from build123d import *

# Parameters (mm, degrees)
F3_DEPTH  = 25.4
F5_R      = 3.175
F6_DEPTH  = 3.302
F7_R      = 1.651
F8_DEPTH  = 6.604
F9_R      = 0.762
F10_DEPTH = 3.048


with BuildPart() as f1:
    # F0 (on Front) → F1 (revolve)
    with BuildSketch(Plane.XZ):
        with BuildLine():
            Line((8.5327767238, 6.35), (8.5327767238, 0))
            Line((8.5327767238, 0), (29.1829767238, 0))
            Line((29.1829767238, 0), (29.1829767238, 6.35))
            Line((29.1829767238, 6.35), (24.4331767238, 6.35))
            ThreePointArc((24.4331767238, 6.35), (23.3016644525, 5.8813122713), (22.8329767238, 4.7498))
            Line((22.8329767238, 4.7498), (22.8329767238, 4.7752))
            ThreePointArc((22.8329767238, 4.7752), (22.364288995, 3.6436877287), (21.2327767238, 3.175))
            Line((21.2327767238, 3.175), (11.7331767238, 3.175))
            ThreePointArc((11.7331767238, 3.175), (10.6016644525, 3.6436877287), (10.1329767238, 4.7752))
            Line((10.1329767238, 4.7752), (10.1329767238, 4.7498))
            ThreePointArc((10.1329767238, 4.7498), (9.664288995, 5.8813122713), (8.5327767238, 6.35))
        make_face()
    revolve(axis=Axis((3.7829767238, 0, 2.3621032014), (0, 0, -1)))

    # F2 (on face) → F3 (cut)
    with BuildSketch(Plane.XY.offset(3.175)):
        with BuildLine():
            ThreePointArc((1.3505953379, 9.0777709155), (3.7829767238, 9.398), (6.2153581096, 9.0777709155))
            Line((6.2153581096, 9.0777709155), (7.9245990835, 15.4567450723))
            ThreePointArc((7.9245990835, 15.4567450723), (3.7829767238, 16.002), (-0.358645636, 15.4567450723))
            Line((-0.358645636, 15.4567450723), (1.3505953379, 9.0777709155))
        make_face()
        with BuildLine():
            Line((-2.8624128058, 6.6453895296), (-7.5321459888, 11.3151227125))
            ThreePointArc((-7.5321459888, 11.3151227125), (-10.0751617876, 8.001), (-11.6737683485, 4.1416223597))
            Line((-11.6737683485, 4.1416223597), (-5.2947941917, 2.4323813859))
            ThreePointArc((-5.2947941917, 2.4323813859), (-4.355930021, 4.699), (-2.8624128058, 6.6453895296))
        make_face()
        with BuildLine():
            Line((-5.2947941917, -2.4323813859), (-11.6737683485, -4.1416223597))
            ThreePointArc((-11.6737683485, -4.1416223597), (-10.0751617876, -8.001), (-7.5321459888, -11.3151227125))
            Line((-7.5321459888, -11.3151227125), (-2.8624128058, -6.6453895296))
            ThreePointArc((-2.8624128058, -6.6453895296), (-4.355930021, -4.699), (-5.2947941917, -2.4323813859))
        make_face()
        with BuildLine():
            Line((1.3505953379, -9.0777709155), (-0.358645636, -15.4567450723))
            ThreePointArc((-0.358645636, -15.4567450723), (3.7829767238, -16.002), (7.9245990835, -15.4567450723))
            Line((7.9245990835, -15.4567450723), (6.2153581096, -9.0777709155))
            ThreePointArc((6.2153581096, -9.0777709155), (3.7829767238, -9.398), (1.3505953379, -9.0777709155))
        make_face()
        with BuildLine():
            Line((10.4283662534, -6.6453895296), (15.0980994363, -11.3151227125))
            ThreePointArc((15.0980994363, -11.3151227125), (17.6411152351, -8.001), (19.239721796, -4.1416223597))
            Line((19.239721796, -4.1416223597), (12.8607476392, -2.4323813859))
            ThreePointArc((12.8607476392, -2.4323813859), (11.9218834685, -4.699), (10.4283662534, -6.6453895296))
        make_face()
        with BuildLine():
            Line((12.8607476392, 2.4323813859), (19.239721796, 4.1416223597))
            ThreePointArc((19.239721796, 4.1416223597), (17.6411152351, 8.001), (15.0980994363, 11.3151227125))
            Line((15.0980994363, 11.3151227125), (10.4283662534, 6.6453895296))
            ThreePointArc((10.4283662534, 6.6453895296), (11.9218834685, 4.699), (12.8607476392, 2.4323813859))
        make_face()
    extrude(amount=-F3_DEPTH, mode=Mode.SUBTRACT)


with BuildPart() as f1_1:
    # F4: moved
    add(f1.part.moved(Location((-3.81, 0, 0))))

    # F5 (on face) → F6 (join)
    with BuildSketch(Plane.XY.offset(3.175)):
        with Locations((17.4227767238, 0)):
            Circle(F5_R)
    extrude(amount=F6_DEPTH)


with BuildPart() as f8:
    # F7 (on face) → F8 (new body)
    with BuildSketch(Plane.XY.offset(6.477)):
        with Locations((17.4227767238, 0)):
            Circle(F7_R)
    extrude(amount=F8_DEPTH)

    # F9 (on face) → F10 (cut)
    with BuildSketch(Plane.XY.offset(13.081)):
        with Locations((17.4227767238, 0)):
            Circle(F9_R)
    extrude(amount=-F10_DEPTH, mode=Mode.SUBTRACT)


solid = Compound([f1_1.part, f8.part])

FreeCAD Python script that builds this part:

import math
import FreeCAD as App
import Part
import Sketcher
Q = App.Units.Quantity

doc = App.newDocument("Part")
body = doc.addObject("PartDesign::Body", "Body")

sketch1 = doc.addObject("Sketcher::SketchObject", "Sketch")
body.addObject(sketch1)
sketch1.AttachmentSupport = (doc.XZ_Plane, [""])
sketch1.MapMode = "FlatFace"
sketch1.addGeometry([
    Part.LineSegment(App.Vector(8.532777, 6.35, 0), App.Vector(8.532777, 0, 0)),
    Part.LineSegment(App.Vector(8.532777, 0, 0), App.Vector(29.182977, 0, 0)),
    Part.LineSegment(App.Vector(29.182977, 0, 0), App.Vector(29.182977, 6.35, 0)),
    Part.LineSegment(App.Vector(29.182977, 6.35, 0), App.Vector(24.433177, 6.35, 0)),
    Part.ArcOfCircle(Part.Circle(App.Vector(24.433177, 4.7498, 0), App.Vector(0, 0, 1), 1.6002), math.radians(90), math.radians(180)),
    Part.LineSegment(App.Vector(22.832977, 4.7498, 0), App.Vector(22.832977, 4.7752, 0)),
    Part.ArcOfCircle(Part.Circle(App.Vector(21.232777, 4.7752, 0), App.Vector(0, 0, 1), 1.6002), math.radians(-90), math.radians(0)),
    Part.LineSegment(App.Vector(21.232777, 3.175, 0), App.Vector(11.733177, 3.175, 0)),
    Part.ArcOfCircle(Part.Circle(App.Vector(11.733177, 4.7752, 0), App.Vector(0, 0, 1), 1.6002), math.radians(180), math.radians(270)),
    Part.LineSegment(App.Vector(10.132977, 4.7752, 0), App.Vector(10.132977, 4.7498, 0)),
    Part.ArcOfCircle(Part.Circle(App.Vector(8.532777, 4.7498, 0), App.Vector(0, 0, 1), 1.6002), math.radians(0), math.radians(90)),
], False)
sketch1.addGeometry(Part.LineSegment(App.Vector(3.782977, 6.35, 0), App.Vector(3.782977, 0, 0)), True)
sketch1.addConstraint([
    Sketcher.Constraint("Coincident", 0, 2, 1, 1),
    Sketcher.Constraint("Coincident", 1, 2, 2, 1),
    Sketcher.Constraint("Coincident", 2, 2, 3, 1),
    Sketcher.Constraint("Tangent", 3, 2, 4, 1),
    Sketcher.Constraint("Tangent", 4, 2, 5, 1),
    Sketcher.Constraint("Tangent", 5, 2, 6, 2),
    Sketcher.Constraint("Tangent", 6, 1, 7, 1),
    Sketcher.Constraint("Tangent", 7, 2, 8, 2),
    Sketcher.Constraint("Tangent", 8, 1, 9, 1),
    Sketcher.Constraint("Tangent", 9, 2, 10, 1),
    Sketcher.Constraint("Coincident", 10, 2, 0, 1),
    Sketcher.Constraint("Vertical", 0),
    Sketcher.Constraint("Horizontal", 1),
    Sketcher.Constraint("Vertical", 2),
    Sketcher.Constraint("Horizontal", 3),
    Sketcher.Constraint("Vertical", 5),
    Sketcher.Constraint("Horizontal", 7),
    Sketcher.Constraint("Vertical", 9),
    Sketcher.Constraint("Vertical", 11),
    Sketcher.Constraint("Equal", 4, 6),
    Sketcher.Constraint("Equal", 6, 8),
    Sketcher.Constraint("Equal", 8, 10),
    Sketcher.Constraint("PointOnObject", 0, 2, -1),
    Sketcher.Constraint("PointOnObject", 11, 2, -1),
    Sketcher.Constraint("Horizontal", 4, 3, 10, 3),
    Sketcher.Constraint("Horizontal", 10, 2, 11, 1),
    Sketcher.Constraint("Vertical", 10, 3, 0, 2),
    Sketcher.Constraint("Radius", 4, Q("0.063 in")),
    Sketcher.Constraint("DistanceY", 0, 2, 0, 1, Q("0.25 in")),
    Sketcher.Constraint("DistanceX", 8, 3, 4, 3, Q("0.5 in")),
    Sketcher.Constraint("DistanceX", 1, 1, 1, 2, Q("0.813 in")),
    Sketcher.Constraint("DistanceY", 5, 1, 5, 2, Q("0.001 in")),
    Sketcher.Constraint("DistanceX", 11, 1, 8, 1, Q("0.25 in")),
    Sketcher.Constraint("DistanceX", -1, 1, 4, 3, Q("24.433177 mm")),
])
revolution = doc.addObject("PartDesign::Revolution", "Revolution")
body.addObject(revolution)
revolution.Profile = sketch1
revolution.ReferenceAxis = (sketch1, ["Axis0"])
revolution.Angle = 360

sketch2 = doc.addObject("Sketcher::SketchObject", "Sketch001")
body.addObject(sketch2)
sketch2.AttachmentSupport = (doc.XY_Plane, [""])
sketch2.MapMode = "FlatFace"
sketch2.AttachmentOffset = App.Placement(App.Vector(0, 0, 0.125 * 25.4), App.Rotation())
sketch2.addGeometry([
    Part.ArcOfCircle(Part.Circle(App.Vector(3.782977, 0, 0), App.Vector(0, 0, 1), 9.398), math.radians(75), math.radians(105)),
    Part.LineSegment(App.Vector(6.215358, 9.077771, 0), App.Vector(7.924599, 15.456745, 0)),
    Part.ArcOfCircle(Part.Circle(App.Vector(3.782977, 0, 0), App.Vector(0, 0, 1), 16.002), math.radians(75), math.radians(105)),
    Part.LineSegment(App.Vector(-0.358646, 15.456745, 0), App.Vector(1.350595, 9.077771, 0)),
    Part.LineSegment(App.Vector(-2.862413, 6.64539, 0), App.Vector(-7.532146, 11.315123, 0)),
    Part.ArcOfCircle(Part.Circle(App.Vector(3.782977, 0, 0), App.Vector(0, 0, 1), 16.002), math.radians(135), math.radians(165)),
    Part.LineSegment(App.Vector(-11.673768, 4.141622, 0), App.Vector(-5.294794, 2.432381, 0)),
    Part.ArcOfCircle(Part.Circle(App.Vector(3.782977, 0, 0), App.Vector(0, 0, 1), 9.398), math.radians(135), math.radians(165)),
    Part.LineSegment(App.Vector(-5.294794, -2.432381, 0), App.Vector(-11.673768, -4.141622, 0)),
    Part.ArcOfCircle(Part.Circle(App.Vector(3.782977, 0, 0), App.Vector(0, 0, 1), 16.002), math.radians(-165), math.radians(-135)),
    Part.LineSegment(App.Vector(-7.532146, -11.315123, 0), App.Vector(-2.862413, -6.64539, 0)),
    Part.ArcOfCircle(Part.Circle(App.Vector(3.782977, 0, 0), App.Vector(0, 0, 1), 9.398), math.radians(-165), math.radians(-135)),
    Part.LineSegment(App.Vector(1.350595, -9.077771, 0), App.Vector(-0.358646, -15.456745, 0)),
    Part.ArcOfCircle(Part.Circle(App.Vector(3.782977, 0, 0), App.Vector(0, 0, 1), 16.002), math.radians(-105), math.radians(-75)),
    Part.LineSegment(App.Vector(7.924599, -15.456745, 0), App.Vector(6.215358, -9.077771, 0)),
    Part.ArcOfCircle(Part.Circle(App.Vector(3.782977, 0, 0), App.Vector(0, 0, 1), 9.398), math.radians(-105), math.radians(-75)),
    Part.LineSegment(App.Vector(10.428366, -6.64539, 0), App.Vector(15.098099, -11.315123, 0)),
    Part.ArcOfCircle(Part.Circle(App.Vector(3.782977, 0, 0), App.Vector(0, 0, 1), 16.002), math.radians(-45), math.radians(-15)),
    Part.LineSegment(App.Vector(19.239722, -4.141622, 0), App.Vector(12.860748, -2.432381, 0)),
    Part.ArcOfCircle(Part.Circle(App.Vector(3.782977, 0, 0), App.Vector(0, 0, 1), 9.398), math.radians(-45), math.radians(-15)),
    Part.LineSegment(App.Vector(12.860748, 2.432381, 0), App.Vector(19.239722, 4.141622, 0)),
    Part.ArcOfCircle(Part.Circle(App.Vector(3.782977, 0, 0), App.Vector(0, 0, 1), 16.002), math.radians(15), math.radians(45)),
    Part.LineSegment(App.Vector(15.098099, 11.315123, 0), App.Vector(10.428366, 6.64539, 0)),
    Part.ArcOfCircle(Part.Circle(App.Vector(3.782977, 0, 0), App.Vector(0, 0, 1), 9.398), math.radians(15), math.radians(45)),
], False)
sketch2.addConstraint([
    Sketcher.Constraint("Coincident", 0, 1, 1, 1),
    Sketcher.Constraint("Coincident", 1, 2, 2, 1),
    Sketcher.Constraint("Coincident", 2, 2, 3, 1),
    Sketcher.Constraint("Coincident", 3, 2, 0, 2),
    Sketcher.Constraint("Coincident", 4, 2, 5, 1),
    Sketcher.Constraint("Coincident", 5, 2, 6, 1),
    Sketcher.Constraint("Coincident", 6, 2, 7, 2),
    Sketcher.Constraint("Coincident", 7, 1, 4, 1),
    Sketcher.Constraint("Coincident", 8, 2, 9, 1),
    Sketcher.Constraint("Coincident", 9, 2, 10, 1),
    Sketcher.Constraint("Coincident", 10, 2, 11, 2),
    Sketcher.Constraint("Coincident", 11, 1, 8, 1),
    Sketcher.Constraint("Coincident", 12, 2, 13, 1),
    Sketcher.Constraint("Coincident", 13, 2, 14, 1),
    Sketcher.Constraint("Coincident", 14, 2, 15, 2),
    Sketcher.Constraint("Coincident", 15, 1, 12, 1),
    Sketcher.Constraint("Coincident", 16, 2, 17, 1),
    Sketcher.Constraint("Coincident", 17, 2, 18, 1),
    Sketcher.Constraint("Coincident", 18, 2, 19, 2),
    Sketcher.Constraint("Coincident", 19, 1, 16, 1),
    Sketcher.Constraint("Coincident", 20, 2, 21, 1),
    Sketcher.Constraint("Coincident", 21, 2, 22, 1),
    Sketcher.Constraint("Coincident", 22, 2, 23, 2),
    Sketcher.Constraint("Coincident", 23, 1, 20, 1),
    Sketcher.Constraint("Coincident", 2, 3, 0, 3),
    Sketcher.Constraint("Coincident", 5, 3, 0, 3),
    Sketcher.Constraint("Coincident", 7, 3, 0, 3),
    Sketcher.Constraint("Coincident", 9, 3, 0, 3),
    Sketcher.Constraint("Coincident", 11, 3, 0, 3),
    Sketcher.Constraint("Coincident", 13, 3, 0, 3),
    Sketcher.Constraint("Coincident", 15, 3, 0, 3),
    Sketcher.Constraint("Coincident", 17, 3, 0, 3),
    Sketcher.Constraint("Coincident", 19, 3, 0, 3),
    Sketcher.Constraint("Coincident", 21, 3, 0, 3),
    Sketcher.Constraint("Coincident", 23, 3, 0, 3),
    Sketcher.Constraint("Equal", 2, 5),
    Sketcher.Constraint("Equal", 0, 7),
    Sketcher.Constraint("Equal", 5, 9),
    Sketcher.Constraint("Equal", 7, 11),
    Sketcher.Constraint("Equal", 9, 13),
    Sketcher.Constraint("Equal", 11, 15),
    Sketcher.Constraint("Equal", 13, 17),
    Sketcher.Constraint("Equal", 15, 19),
    Sketcher.Constraint("Equal", 17, 21),
    Sketcher.Constraint("Equal", 19, 23),
    Sketcher.Constraint("Symmetric", 5, 2, 8, 2, -1),
    Sketcher.Constraint("Perpendicular", 1, 6),
    Sketcher.Constraint("Perpendicular", 3, 8),
    Sketcher.Constraint("Perpendicular", 4, 10),
    Sketcher.Constraint("Perpendicular", 6, 12),
    Sketcher.Constraint("Perpendicular", 8, 14),
    Sketcher.Constraint("Perpendicular", 10, 16),
    Sketcher.Constraint("Perpendicular", 12, 18),
    Sketcher.Constraint("Perpendicular", 14, 20),
    Sketcher.Constraint("Perpendicular", 16, 22),
    Sketcher.Constraint("Horizontal", 1, 2, 2, 2),
    Sketcher.Constraint("Horizontal", 0, 1, 3, 2),
    Sketcher.Constraint("Horizontal", 12, 2, 13, 2),
    Sketcher.Constraint("Horizontal", 9, 2, 16, 2),
    Sketcher.Constraint("Horizontal", 8, 2, 17, 2),
    Sketcher.Constraint("Horizontal", 10, 2, 19, 1),
    Sketcher.Constraint("Horizontal", 5, 2, 20, 2),
    Sketcher.Constraint("Horizontal", 4, 2, 21, 2),
    Sketcher.Constraint("Vertical", 4, 2, 9, 2),
    Sketcher.Constraint("Vertical", 2, 2, 12, 2),
    Sketcher.Constraint("Radius", 0, Q("0.37 in")),
    Sketcher.Constraint("Radius", 2, Q("0.63 in")),
    Sketcher.Constraint("Angle", 1, Q("75 deg")),
    Sketcher.Constraint("DistanceX", -1, 1, 1, 2, Q("7.924599 mm")),
    Sketcher.Constraint("DistanceX", -1, 1, 16, 2, Q("15.098099 mm")),
    Sketcher.Constraint("DistanceY", 5, 2, 4, 2, Q("7.1735 mm")),
    Sketcher.Constraint("DistanceY", -1, 1, 0, 1, Q("9.077771 mm")),
])
pocket1 = doc.addObject("PartDesign::Pocket", "Pocket")
body.addObject(pocket1)
pocket1.Profile = sketch2
pocket1.Length = Q("1 in")
body2 = doc.addObject("PartDesign::Body", "Body001")
doc.recompute()

body.Placement = App.Placement(App.Vector(-3.81, 0, 0), App.Rotation(App.Vector(0, 0, 1), 0))
boolean = doc.addObject("PartDesign::Boolean", "Boolean")
body2.addObject(boolean)
boolean.Type = "Fuse"
boolean.addObjects([body])

sketch3 = doc.addObject("Sketcher::SketchObject", "Sketch002")
body2.addObject(sketch3)
sketch3.AttachmentSupport = (doc.getObject("XY_Plane001"), [""])
sketch3.MapMode = "FlatFace"
sketch3.AttachmentOffset = App.Placement(App.Vector(0, 0, 0.125 * 25.4), App.Rotation())
sketch3.addGeometry(Part.Circle(App.Vector(17.422777, 0, 0), App.Vector(0, 0, 1), 3.175), False)
sketch3.addConstraint([
    Sketcher.Constraint("PointOnObject", 0, 3, -1),
    Sketcher.Constraint("Diameter", 0, Q("0.25 in")),
    Sketcher.Constraint("DistanceX", -1, 1, 0, 3, Q("17.422777 mm")),
])
pad1 = doc.addObject("PartDesign::Pad", "Pad")
body2.addObject(pad1)
pad1.Profile = sketch3
pad1.Length = Q("0.13 in")
body3 = doc.addObject("PartDesign::Body", "Body002")

sketch4 = doc.addObject("Sketcher::SketchObject", "Sketch003")
body3.addObject(sketch4)
sketch4.AttachmentSupport = (doc.getObject("XY_Plane002"), [""])
sketch4.MapMode = "FlatFace"
sketch4.AttachmentOffset = App.Placement(App.Vector(0, 0, 0.255 * 25.4), App.Rotation())
sketch4.addGeometry(Part.Circle(App.Vector(17.422777, 0, 0), App.Vector(0, 0, 1), 1.651), False)
sketch4.addConstraint([
    Sketcher.Constraint("PointOnObject", 0, 3, -1),
    Sketcher.Constraint("Diameter", 0, Q("0.13 in")),
    Sketcher.Constraint("DistanceX", -1, 1, 0, 3, Q("17.422777 mm")),
])
pad2 = doc.addObject("PartDesign::Pad", "Pad001")
body3.addObject(pad2)
pad2.Profile = sketch4
pad2.Length = Q("0.26 in")

sketch5 = doc.addObject("Sketcher::SketchObject", "Sketch004")
body3.addObject(sketch5)
sketch5.AttachmentSupport = (doc.getObject("XY_Plane002"), [""])
sketch5.MapMode = "FlatFace"
sketch5.AttachmentOffset = App.Placement(App.Vector(0, 0, 0.515 * 25.4), App.Rotation())
sketch5.addGeometry(Part.Circle(App.Vector(17.422777, 0, 0), App.Vector(0, 0, 1), 0.762), False)
sketch5.addConstraint([
    Sketcher.Constraint("PointOnObject", 0, 3, -1),
    Sketcher.Constraint("Diameter", 0, Q("0.06 in")),
    Sketcher.Constraint("DistanceX", -1, 1, 0, 3, Q("17.422777 mm")),
])
pocket2 = doc.addObject("PartDesign::Pocket", "Pocket001")
body3.addObject(pocket2)
pocket2.Profile = sketch5
pocket2.Length = Q("0.12 in")

doc.recompute()
